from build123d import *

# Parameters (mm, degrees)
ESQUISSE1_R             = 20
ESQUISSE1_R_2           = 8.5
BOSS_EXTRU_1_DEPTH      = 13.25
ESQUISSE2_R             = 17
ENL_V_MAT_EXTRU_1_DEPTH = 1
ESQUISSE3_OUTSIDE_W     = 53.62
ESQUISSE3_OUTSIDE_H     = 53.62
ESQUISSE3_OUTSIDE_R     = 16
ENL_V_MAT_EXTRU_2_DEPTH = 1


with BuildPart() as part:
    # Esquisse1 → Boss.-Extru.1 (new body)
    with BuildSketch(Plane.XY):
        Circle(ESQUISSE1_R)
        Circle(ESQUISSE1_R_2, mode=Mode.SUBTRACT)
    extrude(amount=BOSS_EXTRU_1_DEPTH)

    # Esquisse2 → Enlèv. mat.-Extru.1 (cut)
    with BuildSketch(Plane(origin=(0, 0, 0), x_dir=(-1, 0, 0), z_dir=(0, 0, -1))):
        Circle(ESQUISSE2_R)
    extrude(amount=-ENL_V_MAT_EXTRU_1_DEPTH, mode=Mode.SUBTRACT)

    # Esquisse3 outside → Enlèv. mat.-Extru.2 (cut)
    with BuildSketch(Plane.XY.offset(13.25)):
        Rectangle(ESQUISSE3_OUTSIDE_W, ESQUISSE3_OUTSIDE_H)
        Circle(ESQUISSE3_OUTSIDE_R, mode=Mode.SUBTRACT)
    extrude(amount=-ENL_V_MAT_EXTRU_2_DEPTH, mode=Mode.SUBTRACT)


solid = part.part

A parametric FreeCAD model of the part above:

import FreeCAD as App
import Part
import Sketcher
from FreeCAD import Vector
Q = App.Units.Quantity

doc = App.newDocument("Part")
body = doc.addObject("PartDesign::Body", "Body")

sketch1 = body.newObject("Sketcher::SketchObject", "Sketch")
sketch1.AttachmentSupport = (doc.getObject("XY_Plane"), [""])
sketch1.MapMode = "FlatFace"
sketch1.addGeometry([
    Part.Circle(Vector(0, 0, 0), Vector(0, 0, 1), 20),
    Part.Circle(Vector(0, 0, 0), Vector(0, 0, 1), 8),
], False)
sketch1.addConstraint([
    Sketcher.Constraint("Coincident", 0, 3, -1, 1),
    Sketcher.Constraint("Coincident", 1, 3, -1, 1),
    Sketcher.Constraint("Diameter", 0, Q("40 mm")),
    Sketcher.Constraint("Diameter", 1, Q("17 mm")),
])
pad1 = body.newObject("PartDesign::Pad", "Pad")
pad1.Profile = sketch1
pad1.Length = 13.25

sketch2 = body.newObject("Sketcher::SketchObject", "Sketch001")
sketch2.AttachmentSupport = (doc.getObject("XY_Plane"), [""])
sketch2.MapMode = "FlatFace"
sketch2.addGeometry(Part.Circle(Vector(0, 0, 0), Vector(0, 0, 1), 17), False)
sketch2.addConstraint([
    Sketcher.Constraint("Coincident", 0, 3, -1, 1),
    Sketcher.Constraint("Diameter", 0, Q("34 mm")),
])
pocket1 = body.newObject("PartDesign::Pocket", "Pocket")
pocket1.Profile = sketch2
pocket1.Length = 1
pocket1.Reversed = True

sketch3 = body.newObject("Sketcher::SketchObject", "Sketch002")
sketch3.AttachmentSupport = (doc.getObject("XY_Plane"), [""])
sketch3.MapMode = "FlatFace"
sketch3.AttachmentOffset = App.Placement(Vector(0, 0, 13.25), App.Rotation())
sketch3.addGeometry([
    Part.LineSegment(Vector(-27, 27, 0), Vector(-27, -27, 0)),
    Part.LineSegment(Vector(-27, -27, 0), Vector(27, -27, 0)),
    Part.LineSegment(Vector(27, -27, 0), Vector(27, 27, 0)),
    Part.LineSegment(Vector(27, 27, 0), Vector(-27, 27, 0)),
    Part.Circle(Vector(0, 0, 0), Vector(0, 0, 1), 16),
], False)
sketch3.addConstraint([
    Sketcher.Constraint("Coincident", 0, 2, 1, 1),
    Sketcher.Constraint("Coincident", 1, 2, 2, 1),
    Sketcher.Constraint("Coincident", 2, 2, 3, 1),
    Sketcher.Constraint("Coincident", 3, 2, 0, 1),
    Sketcher.Constraint("Vertical", 0),
    Sketcher.Constraint("Horizontal", 1),
    Sketcher.Constraint("Vertical", 2),
    Sketcher.Constraint("Horizontal", 3),
    Sketcher.Constraint("Coincident", 4, 3, -1, 1),
    Sketcher.Constraint("Symmetric", 0, 2, 2, 2, -1, 1),
    Sketcher.Constraint("Equal", 3, 0),
    Sketcher.Constraint("Diameter", 4, Q("32 mm")),
    Sketcher.Constraint("DistanceX", 1, 1, 1, 2, Q("53.62 mm")),
])
pocket2 = body.newObject("PartDesign::Pocket", "Pocket001")
pocket2.Profile = sketch3
pocket2.Length = 1

doc.recompute()
